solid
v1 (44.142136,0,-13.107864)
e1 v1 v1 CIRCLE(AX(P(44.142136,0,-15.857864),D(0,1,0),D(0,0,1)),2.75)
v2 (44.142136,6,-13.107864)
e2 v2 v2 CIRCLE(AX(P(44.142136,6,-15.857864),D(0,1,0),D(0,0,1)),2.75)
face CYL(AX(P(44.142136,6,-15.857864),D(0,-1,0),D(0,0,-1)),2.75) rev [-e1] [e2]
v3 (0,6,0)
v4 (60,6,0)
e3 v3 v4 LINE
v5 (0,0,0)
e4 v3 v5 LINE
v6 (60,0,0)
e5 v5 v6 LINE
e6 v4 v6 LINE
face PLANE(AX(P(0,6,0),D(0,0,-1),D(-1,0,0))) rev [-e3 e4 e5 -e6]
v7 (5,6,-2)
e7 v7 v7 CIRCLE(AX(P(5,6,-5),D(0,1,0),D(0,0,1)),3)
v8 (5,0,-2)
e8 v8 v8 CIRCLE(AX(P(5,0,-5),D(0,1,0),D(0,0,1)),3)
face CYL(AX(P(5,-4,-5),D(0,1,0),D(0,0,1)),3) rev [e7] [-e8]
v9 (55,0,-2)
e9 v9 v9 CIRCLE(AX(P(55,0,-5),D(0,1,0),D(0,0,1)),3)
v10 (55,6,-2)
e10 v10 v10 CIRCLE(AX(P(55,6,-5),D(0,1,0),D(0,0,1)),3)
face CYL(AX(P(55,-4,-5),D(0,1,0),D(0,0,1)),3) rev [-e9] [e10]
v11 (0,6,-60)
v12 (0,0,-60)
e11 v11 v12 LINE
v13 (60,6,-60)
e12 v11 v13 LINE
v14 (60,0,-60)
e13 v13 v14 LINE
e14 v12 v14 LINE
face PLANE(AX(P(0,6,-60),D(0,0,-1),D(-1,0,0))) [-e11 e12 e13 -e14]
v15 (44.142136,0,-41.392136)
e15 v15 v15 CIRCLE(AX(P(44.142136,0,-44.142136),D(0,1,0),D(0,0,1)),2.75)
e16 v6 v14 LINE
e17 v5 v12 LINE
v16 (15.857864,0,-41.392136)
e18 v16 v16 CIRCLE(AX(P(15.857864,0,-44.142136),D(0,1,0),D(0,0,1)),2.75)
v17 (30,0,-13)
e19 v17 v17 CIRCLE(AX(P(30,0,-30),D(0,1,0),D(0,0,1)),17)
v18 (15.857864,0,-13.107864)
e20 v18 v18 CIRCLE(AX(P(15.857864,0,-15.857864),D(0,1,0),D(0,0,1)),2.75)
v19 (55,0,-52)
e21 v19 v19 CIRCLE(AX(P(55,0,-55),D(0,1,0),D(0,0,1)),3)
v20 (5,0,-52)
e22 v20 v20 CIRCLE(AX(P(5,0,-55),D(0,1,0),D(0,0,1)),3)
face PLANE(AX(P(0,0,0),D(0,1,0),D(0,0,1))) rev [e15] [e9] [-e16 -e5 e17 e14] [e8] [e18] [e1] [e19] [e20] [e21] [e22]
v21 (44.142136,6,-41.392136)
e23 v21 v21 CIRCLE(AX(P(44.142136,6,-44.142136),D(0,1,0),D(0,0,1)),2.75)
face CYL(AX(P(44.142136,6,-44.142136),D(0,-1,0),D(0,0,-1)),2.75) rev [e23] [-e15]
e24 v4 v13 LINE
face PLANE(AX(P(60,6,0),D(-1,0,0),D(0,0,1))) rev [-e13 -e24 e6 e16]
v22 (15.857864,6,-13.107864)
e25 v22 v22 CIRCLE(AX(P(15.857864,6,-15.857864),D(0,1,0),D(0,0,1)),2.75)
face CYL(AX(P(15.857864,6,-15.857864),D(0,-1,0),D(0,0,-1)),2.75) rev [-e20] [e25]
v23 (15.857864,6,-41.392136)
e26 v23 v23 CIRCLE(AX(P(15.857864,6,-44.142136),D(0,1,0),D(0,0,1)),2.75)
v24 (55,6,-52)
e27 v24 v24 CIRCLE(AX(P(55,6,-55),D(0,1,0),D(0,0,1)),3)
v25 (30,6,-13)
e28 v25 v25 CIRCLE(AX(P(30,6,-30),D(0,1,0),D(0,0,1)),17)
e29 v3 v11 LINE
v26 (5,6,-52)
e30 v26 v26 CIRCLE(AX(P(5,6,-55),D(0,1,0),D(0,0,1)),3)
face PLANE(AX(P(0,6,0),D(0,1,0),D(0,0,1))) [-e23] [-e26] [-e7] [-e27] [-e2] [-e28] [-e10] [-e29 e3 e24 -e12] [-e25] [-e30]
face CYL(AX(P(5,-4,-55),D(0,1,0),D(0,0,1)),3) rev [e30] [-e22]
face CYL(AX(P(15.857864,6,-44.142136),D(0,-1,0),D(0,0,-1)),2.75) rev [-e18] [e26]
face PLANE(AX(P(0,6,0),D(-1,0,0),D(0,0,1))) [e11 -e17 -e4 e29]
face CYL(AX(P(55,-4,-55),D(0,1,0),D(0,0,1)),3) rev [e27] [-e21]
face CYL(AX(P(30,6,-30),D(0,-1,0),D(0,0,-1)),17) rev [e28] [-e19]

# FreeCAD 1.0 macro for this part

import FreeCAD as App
import Part
import Sketcher

V = App.Vector
Q = App.Units.Quantity

doc = App.newDocument("Part")
body = doc.addObject("PartDesign::Body", "Body")

# Sketch on XZ plane
sketch1 = doc.addObject("Sketcher::SketchObject", "Sketch")
body.addObject(sketch1)
sketch1.AttachmentSupport = (doc.XZ_Plane, [""])
sketch1.MapMode = "FlatFace"
sketch1.addGeometry([
    Part.LineSegment(V(0, -60, 0), V(0, 0, 0)),  # 0
    Part.LineSegment(V(0, 0, 0), V(60, 0, 0)),  # 1
    Part.LineSegment(V(60, 0, 0), V(60, -60, 0)),  # 2
    Part.LineSegment(V(60, -60, 0), V(0, -60, 0)),  # 3
    Part.Circle(V(15.857864, -15.857864, 0), V(0, 0, 1), 2.75),  # 4
    Part.Circle(V(44.142136, -15.857864, 0), V(0, 0, 1), 2.75),  # 5
    Part.Circle(V(15.857864, -44.142136, 0), V(0, 0, 1), 2.75),  # 6
    Part.Circle(V(30, -30, 0), V(0, 0, 1), 17),  # 7
    Part.Circle(V(44.142136, -44.142136, 0), V(0, 0, 1), 2.75),  # 8
], False)
sketch1.addConstraint([
    Sketcher.Constraint("Coincident", 0, 2, 1, 1),
    Sketcher.Constraint("Coincident", 1, 2, 2, 1),
    Sketcher.Constraint("Coincident", 2, 2, 3, 1),
    Sketcher.Constraint("Coincident", 3, 2, 0, 1),
    Sketcher.Constraint("Vertical", 0),
    Sketcher.Constraint("Horizontal", 1),
    Sketcher.Constraint("Vertical", 2),
    Sketcher.Constraint("Horizontal", 3),
    Sketcher.Constraint("Coincident", 0, 2, -1, 1),
    Sketcher.Constraint("Equal", 4, 5),
    Sketcher.Constraint("Equal", 5, 6),
    Sketcher.Constraint("Equal", 6, 8),
    Sketcher.Constraint("Horizontal", 4, 3, 5, 3),
    Sketcher.Constraint("Horizontal", 6, 3, 8, 3),
    Sketcher.Constraint("Vertical", 4, 3, 6, 3),
    Sketcher.Constraint("Vertical", 5, 3, 8, 3),
    Sketcher.Constraint("Equal", 3, 0),
    Sketcher.Constraint("Diameter", 7, Q("34 mm")),
    Sketcher.Constraint("Diameter", 4, Q("5.5 mm")),
    Sketcher.Constraint("DistanceX", 1, 1, 1, 2, Q("60 mm")),
    Sketcher.Constraint("DistanceX", -1, 1, 7, 3, Q("30 mm")),
    Sketcher.Constraint("DistanceY", 7, 3, -1, 1, Q("30 mm")),
    Sketcher.Constraint("DistanceX", 4, 3, 5, 3, Q("28.284271 mm")),
    Sketcher.Constraint("DistanceY", 6, 3, 4, 3, Q("28.284271 mm")),
    Sketcher.Constraint("DistanceX", -1, 1, 4, 3, Q("15.857864 mm")),
    Sketcher.Constraint("DistanceY", 4, 3, -1, 1, Q("15.857864 mm")),
])
pad1 = doc.addObject("PartDesign::Pad", "Pad")
body.addObject(pad1)
pad1.Profile = sketch1
pad1.Length = 6
pad1.Reversed = True

# Sketch on XZ plane
sketch2 = doc.addObject("Sketcher::SketchObject", "Sketch001")
body.addObject(sketch2)
sketch2.AttachmentSupport = (doc.XZ_Plane, [""])
sketch2.MapMode = "FlatFace"
sketch2.AttachmentOffset = App.Placement(V(0, 0, -6), App.Rotation())
sketch2.addGeometry([
    Part.Circle(V(5, -55, 0), V(0, 0, 1), 3),
    Part.Circle(V(55, -55, 0), V(0, 0, 1), 3),
    Part.Circle(V(55, -5, 0), V(0, 0, 1), 3),
    Part.Circle(V(5, -5, 0), V(0, 0, 1), 3),
], False)
sketch2.addConstraint([
    Sketcher.Constraint("Equal", 0, 1),
    Sketcher.Constraint("Equal", 1, 2),
    Sketcher.Constraint("Equal", 2, 3),
    Sketcher.Constraint("Horizontal", 0, 3, 1, 3),
    Sketcher.Constraint("Horizontal", 2, 3, 3, 3),
    Sketcher.Constraint("Vertical", 1, 3, 2, 3),
    Sketcher.Constraint("Vertical", 0, 3, 3, 3),
    Sketcher.Constraint("Diameter", 0, Q("6 mm")),
    Sketcher.Constraint("DistanceX", -1, 1, 0, 3, Q("5 mm")),
    Sketcher.Constraint("DistanceY", 0, 3, -1, 1, Q("55 mm")),
    Sketcher.Constraint("DistanceX", -1, 1, 1, 3, Q("55 mm")),
    Sketcher.Constraint("DistanceY", 2, 3, -1, 1, Q("5 mm")),
])
pocket1 = doc.addObject("PartDesign::Pocket", "Pocket")
body.addObject(pocket1)
pocket1.Profile = sketch2
pocket1.Length = 10
pocket1.Reversed = True

doc.recompute()
